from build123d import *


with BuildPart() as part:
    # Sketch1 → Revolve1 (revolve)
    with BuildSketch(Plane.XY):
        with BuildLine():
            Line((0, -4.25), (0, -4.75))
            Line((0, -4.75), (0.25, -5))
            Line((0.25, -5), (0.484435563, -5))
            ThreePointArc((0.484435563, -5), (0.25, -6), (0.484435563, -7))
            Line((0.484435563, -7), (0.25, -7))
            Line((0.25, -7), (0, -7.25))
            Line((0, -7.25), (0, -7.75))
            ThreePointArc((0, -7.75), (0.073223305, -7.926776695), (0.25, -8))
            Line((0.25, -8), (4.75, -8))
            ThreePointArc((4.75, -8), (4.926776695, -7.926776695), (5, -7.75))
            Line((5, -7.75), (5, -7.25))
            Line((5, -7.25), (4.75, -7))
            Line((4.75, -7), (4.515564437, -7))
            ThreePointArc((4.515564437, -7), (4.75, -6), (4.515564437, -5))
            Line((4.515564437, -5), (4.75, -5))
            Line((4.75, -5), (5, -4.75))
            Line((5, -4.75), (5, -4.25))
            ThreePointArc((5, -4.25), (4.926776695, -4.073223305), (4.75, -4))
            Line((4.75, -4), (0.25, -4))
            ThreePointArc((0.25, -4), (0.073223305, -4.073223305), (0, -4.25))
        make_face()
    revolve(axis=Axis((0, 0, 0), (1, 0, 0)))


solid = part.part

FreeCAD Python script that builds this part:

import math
import FreeCAD as App
import Part
import Sketcher

V = App.Vector
Q = App.Units.Quantity

doc = App.newDocument("Part")
body = doc.addObject("PartDesign::Body", "Body")

sketch1 = body.newObject("Sketcher::SketchObject", "Sketch")
sketch1.AttachmentSupport = (doc.getObject("XY_Plane"), [""])
sketch1.MapMode = "FlatFace"
sketch1.addGeometry(Part.LineSegment(V(0, -4.25, 0), V(0, -4.75, 0)), False)
sketch1.addGeometry(Part.LineSegment(V(0, -4.75, 0), V(0.25, -5, 0)), False)
sketch1.addGeometry(Part.LineSegment(V(0.25, -5, 0), V(0.48, -5, 0)), False)
sketch1.addGeometry(Part.ArcOfCircle(Part.Circle(V(2.5, -6, 0), V(0, 0, 1), 2.25), math.radians(154), math.radians(206)), False)
sketch1.addGeometry(Part.LineSegment(V(0.48, -7, 0), V(0.25, -7, 0)), False)
sketch1.addGeometry(Part.LineSegment(V(0.25, -7, 0), V(0, -7.25, 0)), False)
sketch1.addGeometry(Part.LineSegment(V(0, -7.25, 0), V(0, -7.75, 0)), False)
sketch1.addGeometry(Part.ArcOfCircle(Part.Circle(V(0.25, -7.75, 0), V(0, 0, 1), 0.25), math.radians(-180), math.radians(-90)), False)
sketch1.addGeometry(Part.LineSegment(V(0.25, -8, 0), V(4.75, -8, 0)), False)
sketch1.addGeometry(Part.ArcOfCircle(Part.Circle(V(4.75, -7.75, 0), V(0, 0, 1), 0.25), math.radians(-90), math.radians(0)), False)
sketch1.addGeometry(Part.LineSegment(V(5, -7.75, 0), V(5, -7.25, 0)), False)
sketch1.addGeometry(Part.LineSegment(V(5, -7.25, 0), V(4.75, -7, 0)), False)
sketch1.addGeometry(Part.LineSegment(V(4.75, -7, 0), V(4.52, -7, 0)), False)
sketch1.addGeometry(Part.ArcOfCircle(Part.Circle(V(2.5, -6, 0), V(0, 0, 1), 2.25), math.radians(-26), math.radians(26)), False)
sketch1.addGeometry(Part.LineSegment(V(4.52, -5, 0), V(4.75, -5, 0)), False)
sketch1.addGeometry(Part.LineSegment(V(4.75, -5, 0), V(5, -4.75, 0)), False)
sketch1.addGeometry(Part.LineSegment(V(5, -4.75, 0), V(5, -4.25, 0)), False)
sketch1.addGeometry(Part.ArcOfCircle(Part.Circle(V(4.75, -4.25, 0), V(0, 0, 1), 0.25), math.radians(0), math.radians(90)), False)
sketch1.addGeometry(Part.LineSegment(V(4.75, -4, 0), V(0.25, -4, 0)), False)
sketch1.addGeometry(Part.ArcOfCircle(Part.Circle(V(0.25, -4.25, 0), V(0, 0, 1), 0.25), math.radians(90), math.radians(180)), False)
sketch1.addConstraint(Sketcher.Constraint("Coincident", 0, 2, 1, 1))
sketch1.addConstraint(Sketcher.Constraint("Coincident", 1, 2, 2, 1))
sketch1.addConstraint(Sketcher.Constraint("Coincident", 2, 2, 3, 1))
sketch1.addConstraint(Sketcher.Constraint("Coincident", 3, 2, 4, 1))
sketch1.addConstraint(Sketcher.Constraint("Coincident", 4, 2, 5, 1))
sketch1.addConstraint(Sketcher.Constraint("Coincident", 5, 2, 6, 1))
sketch1.addConstraint(Sketcher.Constraint("Tangent", 6, 2, 7, 1))
sketch1.addConstraint(Sketcher.Constraint("Tangent", 7, 2, 8, 1))
sketch1.addConstraint(Sketcher.Constraint("Tangent", 8, 2, 9, 1))
sketch1.addConstraint(Sketcher.Constraint("Tangent", 9, 2, 10, 1))
sketch1.addConstraint(Sketcher.Constraint("Coincident", 10, 2, 11, 1))
sketch1.addConstraint(Sketcher.Constraint("Coincident", 11, 2, 12, 1))
sketch1.addConstraint(Sketcher.Constraint("Coincident", 12, 2, 13, 1))
sketch1.addConstraint(Sketcher.Constraint("Coincident", 13, 2, 14, 1))
sketch1.addConstraint(Sketcher.Constraint("Coincident", 14, 2, 15, 1))
sketch1.addConstraint(Sketcher.Constraint("Coincident", 15, 2, 16, 1))
sketch1.addConstraint(Sketcher.Constraint("Tangent", 16, 2, 17, 1))
sketch1.addConstraint(Sketcher.Constraint("Tangent", 17, 2, 18, 1))
sketch1.addConstraint(Sketcher.Constraint("Tangent", 18, 2, 19, 1))
sketch1.addConstraint(Sketcher.Constraint("Tangent", 19, 2, 0, 1))
sketch1.addConstraint(Sketcher.Constraint("Vertical", 0))
sketch1.addConstraint(Sketcher.Constraint("Horizontal", 2))
sketch1.addConstraint(Sketcher.Constraint("Horizontal", 4))
sketch1.addConstraint(Sketcher.Constraint("Vertical", 6))
sketch1.addConstraint(Sketcher.Constraint("Horizontal", 8))
sketch1.addConstraint(Sketcher.Constraint("Vertical", 10))
sketch1.addConstraint(Sketcher.Constraint("Horizontal", 12))
sketch1.addConstraint(Sketcher.Constraint("Horizontal", 14))
sketch1.addConstraint(Sketcher.Constraint("Vertical", 16))
sketch1.addConstraint(Sketcher.Constraint("Horizontal", 18))
sketch1.addConstraint(Sketcher.Constraint("Coincident", 13, 3, 3, 3))
sketch1.addConstraint(Sketcher.Constraint("Equal", 7, 9))
sketch1.addConstraint(Sketcher.Constraint("Equal", 3, 13))
sketch1.addConstraint(Sketcher.Constraint("Equal", 9, 17))
sketch1.addConstraint(Sketcher.Constraint("Equal", 17, 19))
sketch1.addConstraint(Sketcher.Constraint("PointOnObject", 0, 2, -2))
sketch1.addConstraint(Sketcher.Constraint("PointOnObject", 5, 2, -2))
sketch1.addConstraint(Sketcher.Constraint("Perpendicular", 1, 5))
sketch1.addConstraint(Sketcher.Constraint("Perpendicular", 5, 11))
sketch1.addConstraint(Sketcher.Constraint("Perpendicular", 11, 15))
sketch1.addConstraint(Sketcher.Constraint("Horizontal", 5, 2, 10, 2))
sketch1.addConstraint(Sketcher.Constraint("Horizontal", 4, 2, 11, 2))
sketch1.addConstraint(Sketcher.Constraint("Horizontal", 2, 2, 13, 2))
sketch1.addConstraint(Sketcher.Constraint("Horizontal", 0, 2, 15, 2))
sketch1.addConstraint(Sketcher.Constraint("Vertical", 9, 3, 17, 3))
sketch1.addConstraint(Sketcher.Constraint("Vertical", 19, 3, 1, 2))
sketch1.addConstraint(Sketcher.Constraint("Vertical", 2, 2, 3, 2))
sketch1.addConstraint(Sketcher.Constraint("Vertical", 1, 2, 4, 2))
sketch1.addConstraint(Sketcher.Constraint("Vertical", 8, 2, 11, 2))
sketch1.addConstraint(Sketcher.Constraint("Equal", 4, 12))
sketch1.addConstraint(Sketcher.Constraint("Equal", 0, 6))
sketch1.addConstraint(Sketcher.Constraint("Radius", 3, Q("2.25 mm")))
sketch1.addConstraint(Sketcher.Constraint("Radius", 7, Q("0.25 mm")))
sketch1.addConstraint(Sketcher.Constraint("DistanceX", 8, 1, 8, 2, Q("4.5 mm")))
sketch1.addConstraint(Sketcher.Constraint("DistanceY", 0, 2, 0, 1, Q("0.5 mm")))
sketch1.addConstraint(Sketcher.Constraint("DistanceY", 3, 3, -1, 1, Q("6 mm")))
sketch1.addConstraint(Sketcher.Constraint("DistanceY", 1, 2, -1, 1, Q("5 mm")))
revolution = body.newObject("PartDesign::Revolution", "Revolution")
revolution.Profile = sketch1
revolution.ReferenceAxis = (sketch1, ["H_Axis"])
revolution.Angle = 360

doc.recompute()
